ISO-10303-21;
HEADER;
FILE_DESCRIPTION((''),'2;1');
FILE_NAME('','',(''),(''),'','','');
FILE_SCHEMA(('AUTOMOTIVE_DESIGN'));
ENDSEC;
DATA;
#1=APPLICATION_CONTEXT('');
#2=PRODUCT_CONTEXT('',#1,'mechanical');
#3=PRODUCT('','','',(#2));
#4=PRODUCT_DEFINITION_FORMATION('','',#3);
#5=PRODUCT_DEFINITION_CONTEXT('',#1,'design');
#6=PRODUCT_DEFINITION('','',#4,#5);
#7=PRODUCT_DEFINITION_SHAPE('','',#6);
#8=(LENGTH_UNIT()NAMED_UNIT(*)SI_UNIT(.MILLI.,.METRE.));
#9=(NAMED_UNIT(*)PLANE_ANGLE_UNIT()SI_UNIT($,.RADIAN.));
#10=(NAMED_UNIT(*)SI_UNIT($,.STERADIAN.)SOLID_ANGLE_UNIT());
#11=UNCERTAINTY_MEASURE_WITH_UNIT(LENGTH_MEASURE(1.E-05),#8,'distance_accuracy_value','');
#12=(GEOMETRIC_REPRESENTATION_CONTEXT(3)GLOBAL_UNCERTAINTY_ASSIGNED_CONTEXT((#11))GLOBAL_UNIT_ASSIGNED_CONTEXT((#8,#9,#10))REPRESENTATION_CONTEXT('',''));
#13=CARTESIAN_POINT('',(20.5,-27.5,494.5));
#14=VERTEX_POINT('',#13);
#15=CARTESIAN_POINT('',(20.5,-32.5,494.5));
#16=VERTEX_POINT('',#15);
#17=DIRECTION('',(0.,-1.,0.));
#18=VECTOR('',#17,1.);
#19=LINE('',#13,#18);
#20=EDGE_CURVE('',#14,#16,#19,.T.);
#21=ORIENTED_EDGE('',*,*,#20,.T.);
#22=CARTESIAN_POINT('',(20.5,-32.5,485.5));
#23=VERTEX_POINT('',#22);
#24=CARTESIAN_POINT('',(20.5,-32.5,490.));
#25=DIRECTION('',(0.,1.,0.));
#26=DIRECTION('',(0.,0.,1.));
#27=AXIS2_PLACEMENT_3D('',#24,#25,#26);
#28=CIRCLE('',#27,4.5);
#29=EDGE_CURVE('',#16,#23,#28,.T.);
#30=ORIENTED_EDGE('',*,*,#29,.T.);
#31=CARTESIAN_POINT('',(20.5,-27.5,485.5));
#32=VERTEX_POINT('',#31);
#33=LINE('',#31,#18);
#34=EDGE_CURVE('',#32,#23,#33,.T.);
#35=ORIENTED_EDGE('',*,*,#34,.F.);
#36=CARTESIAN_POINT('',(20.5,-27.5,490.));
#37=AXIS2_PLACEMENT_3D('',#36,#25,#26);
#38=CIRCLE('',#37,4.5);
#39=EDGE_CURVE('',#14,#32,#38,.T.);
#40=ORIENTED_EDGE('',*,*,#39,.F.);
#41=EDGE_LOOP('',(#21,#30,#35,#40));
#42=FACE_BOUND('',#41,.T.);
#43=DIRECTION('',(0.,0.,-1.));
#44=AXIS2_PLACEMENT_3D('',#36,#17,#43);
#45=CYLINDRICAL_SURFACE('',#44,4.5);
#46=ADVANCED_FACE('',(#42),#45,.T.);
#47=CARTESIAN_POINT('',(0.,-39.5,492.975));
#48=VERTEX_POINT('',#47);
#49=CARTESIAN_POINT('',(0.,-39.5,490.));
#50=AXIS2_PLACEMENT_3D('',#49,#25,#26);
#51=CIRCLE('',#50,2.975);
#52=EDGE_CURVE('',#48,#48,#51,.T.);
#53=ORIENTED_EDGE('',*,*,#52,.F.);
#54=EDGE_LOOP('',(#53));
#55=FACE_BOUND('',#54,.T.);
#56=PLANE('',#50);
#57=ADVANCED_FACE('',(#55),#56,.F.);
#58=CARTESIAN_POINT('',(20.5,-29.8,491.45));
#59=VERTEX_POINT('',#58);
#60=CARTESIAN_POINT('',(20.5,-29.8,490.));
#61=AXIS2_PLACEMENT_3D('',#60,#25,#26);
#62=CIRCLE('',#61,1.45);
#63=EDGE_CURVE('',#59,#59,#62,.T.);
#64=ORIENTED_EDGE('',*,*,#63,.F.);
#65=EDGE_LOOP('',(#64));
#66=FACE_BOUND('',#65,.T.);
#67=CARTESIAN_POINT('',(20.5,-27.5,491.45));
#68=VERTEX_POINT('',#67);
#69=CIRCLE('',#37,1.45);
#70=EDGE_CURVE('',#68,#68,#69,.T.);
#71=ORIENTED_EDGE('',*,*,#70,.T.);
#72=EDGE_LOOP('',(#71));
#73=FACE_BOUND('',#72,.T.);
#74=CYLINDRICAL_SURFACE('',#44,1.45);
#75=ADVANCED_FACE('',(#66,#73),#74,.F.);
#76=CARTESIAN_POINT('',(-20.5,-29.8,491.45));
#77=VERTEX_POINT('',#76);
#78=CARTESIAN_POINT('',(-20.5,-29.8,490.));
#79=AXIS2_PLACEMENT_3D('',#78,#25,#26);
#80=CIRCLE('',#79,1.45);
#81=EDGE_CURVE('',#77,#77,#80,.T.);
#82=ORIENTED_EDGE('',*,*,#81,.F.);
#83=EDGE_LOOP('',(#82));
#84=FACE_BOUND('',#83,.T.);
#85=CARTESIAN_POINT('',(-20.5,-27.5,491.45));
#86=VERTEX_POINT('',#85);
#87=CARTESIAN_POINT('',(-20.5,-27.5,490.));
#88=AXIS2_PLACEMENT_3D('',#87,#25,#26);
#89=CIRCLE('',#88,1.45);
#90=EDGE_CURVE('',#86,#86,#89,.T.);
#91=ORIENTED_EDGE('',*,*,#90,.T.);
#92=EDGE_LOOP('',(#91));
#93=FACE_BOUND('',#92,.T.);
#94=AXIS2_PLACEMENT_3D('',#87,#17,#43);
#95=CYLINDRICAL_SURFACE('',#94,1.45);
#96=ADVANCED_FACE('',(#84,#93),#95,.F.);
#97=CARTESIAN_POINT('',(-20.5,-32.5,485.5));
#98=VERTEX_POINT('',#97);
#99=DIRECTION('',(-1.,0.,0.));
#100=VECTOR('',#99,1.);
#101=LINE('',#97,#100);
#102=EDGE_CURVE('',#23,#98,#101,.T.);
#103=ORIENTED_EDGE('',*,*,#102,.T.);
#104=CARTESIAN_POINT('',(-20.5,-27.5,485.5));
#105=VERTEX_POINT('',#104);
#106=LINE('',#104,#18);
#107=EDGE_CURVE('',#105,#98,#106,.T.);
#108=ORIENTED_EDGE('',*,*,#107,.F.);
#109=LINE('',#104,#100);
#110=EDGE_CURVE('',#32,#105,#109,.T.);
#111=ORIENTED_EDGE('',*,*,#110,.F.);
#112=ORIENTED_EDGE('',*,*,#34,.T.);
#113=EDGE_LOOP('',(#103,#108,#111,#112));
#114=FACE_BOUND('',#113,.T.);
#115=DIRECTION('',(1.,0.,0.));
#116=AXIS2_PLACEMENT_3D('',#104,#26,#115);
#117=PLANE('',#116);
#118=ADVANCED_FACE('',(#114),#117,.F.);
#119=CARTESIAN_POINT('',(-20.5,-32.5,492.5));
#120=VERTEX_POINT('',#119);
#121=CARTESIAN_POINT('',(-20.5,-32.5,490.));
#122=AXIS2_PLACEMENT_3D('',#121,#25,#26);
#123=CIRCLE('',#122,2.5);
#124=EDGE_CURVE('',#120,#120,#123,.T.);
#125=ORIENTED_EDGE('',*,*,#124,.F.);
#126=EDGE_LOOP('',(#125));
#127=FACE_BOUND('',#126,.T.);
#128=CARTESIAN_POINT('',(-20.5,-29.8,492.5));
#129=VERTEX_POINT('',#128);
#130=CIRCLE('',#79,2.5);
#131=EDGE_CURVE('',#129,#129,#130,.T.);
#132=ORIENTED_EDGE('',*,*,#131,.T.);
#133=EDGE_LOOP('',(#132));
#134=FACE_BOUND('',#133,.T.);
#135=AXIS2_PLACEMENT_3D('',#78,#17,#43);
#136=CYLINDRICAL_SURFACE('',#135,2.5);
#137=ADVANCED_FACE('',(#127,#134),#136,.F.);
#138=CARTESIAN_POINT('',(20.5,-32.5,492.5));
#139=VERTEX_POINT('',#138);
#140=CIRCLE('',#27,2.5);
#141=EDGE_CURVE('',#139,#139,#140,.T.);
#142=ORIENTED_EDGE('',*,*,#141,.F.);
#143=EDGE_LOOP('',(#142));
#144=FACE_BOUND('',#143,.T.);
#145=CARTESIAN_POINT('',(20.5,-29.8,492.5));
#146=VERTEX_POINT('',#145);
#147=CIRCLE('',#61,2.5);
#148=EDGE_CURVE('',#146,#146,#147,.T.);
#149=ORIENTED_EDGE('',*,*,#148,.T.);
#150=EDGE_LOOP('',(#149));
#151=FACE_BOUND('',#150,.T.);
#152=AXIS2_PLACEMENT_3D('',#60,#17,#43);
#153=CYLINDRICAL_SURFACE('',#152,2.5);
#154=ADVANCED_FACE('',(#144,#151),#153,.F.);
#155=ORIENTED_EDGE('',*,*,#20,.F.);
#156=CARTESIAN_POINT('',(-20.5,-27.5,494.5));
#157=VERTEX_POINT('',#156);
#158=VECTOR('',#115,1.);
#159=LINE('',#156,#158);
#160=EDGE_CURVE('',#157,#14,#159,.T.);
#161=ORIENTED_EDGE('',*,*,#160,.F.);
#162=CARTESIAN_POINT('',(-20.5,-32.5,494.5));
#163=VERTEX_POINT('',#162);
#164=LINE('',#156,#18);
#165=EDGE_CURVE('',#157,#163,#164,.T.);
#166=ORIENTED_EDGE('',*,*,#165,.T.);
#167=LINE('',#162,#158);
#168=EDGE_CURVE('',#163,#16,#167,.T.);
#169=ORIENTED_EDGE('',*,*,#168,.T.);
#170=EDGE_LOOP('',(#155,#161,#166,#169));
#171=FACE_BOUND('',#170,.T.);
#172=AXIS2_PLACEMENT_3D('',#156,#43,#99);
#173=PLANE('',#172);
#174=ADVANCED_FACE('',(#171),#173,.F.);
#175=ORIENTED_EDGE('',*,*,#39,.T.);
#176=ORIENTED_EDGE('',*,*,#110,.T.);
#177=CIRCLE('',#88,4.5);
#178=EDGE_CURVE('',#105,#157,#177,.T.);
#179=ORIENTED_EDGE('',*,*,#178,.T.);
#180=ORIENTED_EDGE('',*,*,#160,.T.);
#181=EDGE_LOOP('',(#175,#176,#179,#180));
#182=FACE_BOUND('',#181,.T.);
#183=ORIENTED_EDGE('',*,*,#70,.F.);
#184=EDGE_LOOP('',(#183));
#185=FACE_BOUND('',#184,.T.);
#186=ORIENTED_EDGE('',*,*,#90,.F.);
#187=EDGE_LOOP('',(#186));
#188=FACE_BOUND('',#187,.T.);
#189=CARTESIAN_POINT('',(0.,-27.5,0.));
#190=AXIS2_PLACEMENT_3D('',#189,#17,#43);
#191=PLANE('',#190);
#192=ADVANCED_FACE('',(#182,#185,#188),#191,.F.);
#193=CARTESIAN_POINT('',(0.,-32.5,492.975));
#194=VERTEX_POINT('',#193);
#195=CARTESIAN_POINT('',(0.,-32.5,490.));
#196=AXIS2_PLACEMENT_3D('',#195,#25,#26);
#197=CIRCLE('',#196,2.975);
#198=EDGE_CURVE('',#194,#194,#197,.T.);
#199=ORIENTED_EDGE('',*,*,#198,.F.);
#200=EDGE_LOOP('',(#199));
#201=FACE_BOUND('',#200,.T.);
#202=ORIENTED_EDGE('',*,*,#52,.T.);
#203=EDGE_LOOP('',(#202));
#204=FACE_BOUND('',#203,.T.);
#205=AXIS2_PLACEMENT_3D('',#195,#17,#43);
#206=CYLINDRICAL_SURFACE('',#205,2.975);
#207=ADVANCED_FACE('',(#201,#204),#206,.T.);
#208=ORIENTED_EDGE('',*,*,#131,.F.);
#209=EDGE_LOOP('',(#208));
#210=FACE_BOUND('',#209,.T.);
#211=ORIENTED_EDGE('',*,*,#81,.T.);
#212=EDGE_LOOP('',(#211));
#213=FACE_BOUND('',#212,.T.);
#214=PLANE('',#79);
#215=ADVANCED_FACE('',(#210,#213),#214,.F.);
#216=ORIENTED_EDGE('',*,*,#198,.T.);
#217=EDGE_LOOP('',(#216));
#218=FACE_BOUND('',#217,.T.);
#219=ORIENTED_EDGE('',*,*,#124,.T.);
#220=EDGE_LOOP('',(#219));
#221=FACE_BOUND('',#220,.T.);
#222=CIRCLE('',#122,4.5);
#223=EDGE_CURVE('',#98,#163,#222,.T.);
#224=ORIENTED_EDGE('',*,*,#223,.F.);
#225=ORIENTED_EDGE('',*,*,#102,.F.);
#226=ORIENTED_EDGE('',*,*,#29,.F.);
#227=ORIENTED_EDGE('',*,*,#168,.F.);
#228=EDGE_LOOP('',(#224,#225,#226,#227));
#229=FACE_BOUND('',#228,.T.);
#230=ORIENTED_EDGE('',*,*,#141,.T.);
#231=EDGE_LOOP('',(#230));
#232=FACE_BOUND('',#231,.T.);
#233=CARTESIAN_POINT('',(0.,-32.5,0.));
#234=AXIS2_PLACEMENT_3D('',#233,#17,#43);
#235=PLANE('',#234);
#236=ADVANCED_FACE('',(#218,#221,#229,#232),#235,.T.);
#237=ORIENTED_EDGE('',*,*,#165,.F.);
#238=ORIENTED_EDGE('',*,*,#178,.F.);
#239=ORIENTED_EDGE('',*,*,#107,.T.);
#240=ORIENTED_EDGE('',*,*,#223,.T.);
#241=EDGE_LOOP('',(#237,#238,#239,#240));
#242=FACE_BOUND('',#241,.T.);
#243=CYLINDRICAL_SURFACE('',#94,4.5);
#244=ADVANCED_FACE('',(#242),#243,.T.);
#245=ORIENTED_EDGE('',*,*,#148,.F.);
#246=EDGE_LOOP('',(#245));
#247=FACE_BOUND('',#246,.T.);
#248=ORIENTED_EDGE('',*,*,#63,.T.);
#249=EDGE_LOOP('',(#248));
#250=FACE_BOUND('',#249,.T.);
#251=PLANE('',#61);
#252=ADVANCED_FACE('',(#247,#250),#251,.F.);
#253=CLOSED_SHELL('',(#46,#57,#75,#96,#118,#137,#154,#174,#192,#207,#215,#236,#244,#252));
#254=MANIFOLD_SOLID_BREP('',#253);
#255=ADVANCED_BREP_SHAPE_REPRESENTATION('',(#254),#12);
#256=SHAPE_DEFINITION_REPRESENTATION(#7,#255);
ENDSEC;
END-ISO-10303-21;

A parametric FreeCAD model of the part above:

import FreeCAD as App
import Part
import Sketcher
Q = App.Units.Quantity

doc = App.newDocument("Part")
body = doc.addObject("PartDesign::Body", "Body")

sketch1 = body.newObject("Sketcher::SketchObject", "Sketch")
sketch1.AttachmentSupport = (doc.getObject("XZ_Plane"), [""])
sketch1.MapMode = "FlatFace"
sketch1.AttachmentOffset = App.Placement(App.Vector(0, 0, 32.5), App.Rotation())
sketch1.addGeometry(Part.LineSegment(App.Vector(-20, 486, 0), App.Vector(-20, 494, 0)), False)
sketch1.addGeometry(Part.LineSegment(App.Vector(-20, 494, 0), App.Vector(20, 494, 0)), False)
sketch1.addGeometry(Part.LineSegment(App.Vector(20, 494, 0), App.Vector(20, 486, 0)), False)
sketch1.addGeometry(Part.LineSegment(App.Vector(20, 486, 0), App.Vector(-20, 486, 0)), False)
sketch1.addConstraint(Sketcher.Constraint("Coincident", 0, 2, 1, 1))
sketch1.addConstraint(Sketcher.Constraint("Coincident", 1, 2, 2, 1))
sketch1.addConstraint(Sketcher.Constraint("Coincident", 2, 2, 3, 1))
sketch1.addConstraint(Sketcher.Constraint("Coincident", 3, 2, 0, 1))
sketch1.addConstraint(Sketcher.Constraint("Vertical", 0))
sketch1.addConstraint(Sketcher.Constraint("Horizontal", 1))
sketch1.addConstraint(Sketcher.Constraint("Vertical", 2))
sketch1.addConstraint(Sketcher.Constraint("Horizontal", 3))
sketch1.addConstraint(Sketcher.Constraint("DistanceX", 1, 1, 1, 2, Q("41 mm")))
sketch1.addConstraint(Sketcher.Constraint("DistanceY", 0, 1, 0, 2, Q("9 mm")))
sketch1.addConstraint(Sketcher.Constraint("DistanceX", 0, 2, -1, 1, Q("20.5 mm")))
sketch1.addConstraint(Sketcher.Constraint("DistanceY", -1, 1, 0, 2, Q("494.5 mm")))
pad1 = body.newObject("PartDesign::Pad", "Pad")
pad1.Profile = sketch1
pad1.Length = 5
pad1.Reversed = True

sketch2 = body.newObject("Sketcher::SketchObject", "Sketch001")
sketch2.AttachmentSupport = (doc.getObject("XZ_Plane"), [""])
sketch2.MapMode = "FlatFace"
sketch2.AttachmentOffset = App.Placement(App.Vector(0, 0, 32.5), App.Rotation())
sketch2.addGeometry(Part.Circle(App.Vector(-20.5, 490, 0), App.Vector(0, 0, 1), 4.5), False)
sketch2.addGeometry(Part.Circle(App.Vector(20.5, 490, 0), App.Vector(0, 0, 1), 4.5), False)
sketch2.addConstraint(Sketcher.Constraint("Equal", 0, 1))
sketch2.addConstraint(Sketcher.Constraint("Symmetric", 0, 3, 1, 3, -2))
sketch2.addConstraint(Sketcher.Constraint("Diameter", 0, Q("9 mm")))
sketch2.addConstraint(Sketcher.Constraint("DistanceY", -1, 1, 0, 3, Q("490 mm")))
sketch2.addConstraint(Sketcher.Constraint("DistanceX", 0, 3, 1, 3, Q("41 mm")))
pad2 = body.newObject("PartDesign::Pad", "Pad001")
pad2.Profile = sketch2
pad2.Length = 5
pad2.Reversed = True

sketch3 = body.newObject("Sketcher::SketchObject", "Sketch002")
sketch3.AttachmentSupport = (doc.getObject("XZ_Plane"), [""])
sketch3.MapMode = "FlatFace"
sketch3.AttachmentOffset = App.Placement(App.Vector(0, 0, 39.5), App.Rotation())
sketch3.addGeometry(Part.Circle(App.Vector(0, 490, 0), App.Vector(0, 0, 1), 3), False)
sketch3.addConstraint(Sketcher.Constraint("PointOnObject", 0, 3, -2))
sketch3.addConstraint(Sketcher.Constraint("Diameter", 0, Q("5.95 mm")))
sketch3.addConstraint(Sketcher.Constraint("DistanceY", -1, 1, 0, 3, Q("490 mm")))
pad3 = body.newObject("PartDesign::Pad", "Pad002")
pad3.Profile = sketch3
pad3.Length = 7
pad3.Reversed = True

sketch4 = body.newObject("Sketcher::SketchObject", "Sketch003")
sketch4.AttachmentSupport = (doc.getObject("XZ_Plane"), [""])
sketch4.MapMode = "FlatFace"
sketch4.AttachmentOffset = App.Placement(App.Vector(0, 0, 32.5), App.Rotation())
sketch4.addGeometry(Part.Circle(App.Vector(-20.5, 490, 0), App.Vector(0, 0, 1), 1.4), False)
sketch4.addGeometry(Part.Circle(App.Vector(20.5, 490, 0), App.Vector(0, 0, 1), 1.4), False)
sketch4.addConstraint(Sketcher.Constraint("Equal", 0, 1))
sketch4.addConstraint(Sketcher.Constraint("Symmetric", 0, 3, 1, 3, -2))
sketch4.addConstraint(Sketcher.Constraint("Diameter", 0, Q("2.9 mm")))
sketch4.addConstraint(Sketcher.Constraint("DistanceY", -1, 1, 0, 3, Q("490 mm")))
sketch4.addConstraint(Sketcher.Constraint("DistanceX", 0, 3, 1, 3, Q("41 mm")))
pocket1 = body.newObject("PartDesign::Pocket", "Pocket")
pocket1.Profile = sketch4
pocket1.Length = 5

sketch5 = body.newObject("Sketcher::SketchObject", "Sketch004")
sketch5.AttachmentSupport = (doc.getObject("XZ_Plane"), [""])
sketch5.MapMode = "FlatFace"
sketch5.AttachmentOffset = App.Placement(App.Vector(0, 0, 32.5), App.Rotation())
sketch5.addGeometry(Part.Circle(App.Vector(-20.5, 490, 0), App.Vector(0, 0, 1), 2.5), False)
sketch5.addGeometry(Part.Circle(App.Vector(20.5, 490, 0), App.Vector(0, 0, 1), 2.5), False)
sketch5.addConstraint(Sketcher.Constraint("Equal", 0, 1))
sketch5.addConstraint(Sketcher.Constraint("Symmetric", 0, 3, 1, 3, -2))
sketch5.addConstraint(Sketcher.Constraint("Diameter", 0, Q("5 mm")))
sketch5.addConstraint(Sketcher.Constraint("DistanceY", -1, 1, 0, 3, Q("490 mm")))
sketch5.addConstraint(Sketcher.Constraint("DistanceX", 0, 3, 1, 3, Q("41 mm")))
pocket2 = body.newObject("PartDesign::Pocket", "Pocket001")
pocket2.Profile = sketch5
pocket2.Length = 2.7

doc.recompute()
